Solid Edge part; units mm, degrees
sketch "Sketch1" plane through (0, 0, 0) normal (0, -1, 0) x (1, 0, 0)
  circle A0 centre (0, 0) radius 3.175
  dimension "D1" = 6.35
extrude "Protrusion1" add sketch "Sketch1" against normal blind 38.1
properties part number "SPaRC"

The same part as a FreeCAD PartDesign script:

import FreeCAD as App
import Part
import Sketcher
from FreeCAD import Vector
Q = App.Units.Quantity

doc = App.newDocument("Part")
body = doc.addObject("PartDesign::Body", "Body")

# Sketch on XZ plane
sketch1 = body.newObject("Sketcher::SketchObject", "Sketch")
sketch1.AttachmentSupport = (doc.getObject("XZ_Plane"), [""])
sketch1.MapMode = "FlatFace"
sketch1.addGeometry(Part.Circle(Vector(0, 0, 0), Vector(0, 0, 1), 3.2), False)
sketch1.addConstraint([
    Sketcher.Constraint("Coincident", 0, 3, -1, 1),
    Sketcher.Constraint("Diameter", 0, Q("0.25 in")),
])
pad1 = body.newObject("PartDesign::Pad", "Pad")
pad1.Profile = sketch1
pad1.Length = Q("1.5 in")
pad1.Reversed = True

doc.recompute()
